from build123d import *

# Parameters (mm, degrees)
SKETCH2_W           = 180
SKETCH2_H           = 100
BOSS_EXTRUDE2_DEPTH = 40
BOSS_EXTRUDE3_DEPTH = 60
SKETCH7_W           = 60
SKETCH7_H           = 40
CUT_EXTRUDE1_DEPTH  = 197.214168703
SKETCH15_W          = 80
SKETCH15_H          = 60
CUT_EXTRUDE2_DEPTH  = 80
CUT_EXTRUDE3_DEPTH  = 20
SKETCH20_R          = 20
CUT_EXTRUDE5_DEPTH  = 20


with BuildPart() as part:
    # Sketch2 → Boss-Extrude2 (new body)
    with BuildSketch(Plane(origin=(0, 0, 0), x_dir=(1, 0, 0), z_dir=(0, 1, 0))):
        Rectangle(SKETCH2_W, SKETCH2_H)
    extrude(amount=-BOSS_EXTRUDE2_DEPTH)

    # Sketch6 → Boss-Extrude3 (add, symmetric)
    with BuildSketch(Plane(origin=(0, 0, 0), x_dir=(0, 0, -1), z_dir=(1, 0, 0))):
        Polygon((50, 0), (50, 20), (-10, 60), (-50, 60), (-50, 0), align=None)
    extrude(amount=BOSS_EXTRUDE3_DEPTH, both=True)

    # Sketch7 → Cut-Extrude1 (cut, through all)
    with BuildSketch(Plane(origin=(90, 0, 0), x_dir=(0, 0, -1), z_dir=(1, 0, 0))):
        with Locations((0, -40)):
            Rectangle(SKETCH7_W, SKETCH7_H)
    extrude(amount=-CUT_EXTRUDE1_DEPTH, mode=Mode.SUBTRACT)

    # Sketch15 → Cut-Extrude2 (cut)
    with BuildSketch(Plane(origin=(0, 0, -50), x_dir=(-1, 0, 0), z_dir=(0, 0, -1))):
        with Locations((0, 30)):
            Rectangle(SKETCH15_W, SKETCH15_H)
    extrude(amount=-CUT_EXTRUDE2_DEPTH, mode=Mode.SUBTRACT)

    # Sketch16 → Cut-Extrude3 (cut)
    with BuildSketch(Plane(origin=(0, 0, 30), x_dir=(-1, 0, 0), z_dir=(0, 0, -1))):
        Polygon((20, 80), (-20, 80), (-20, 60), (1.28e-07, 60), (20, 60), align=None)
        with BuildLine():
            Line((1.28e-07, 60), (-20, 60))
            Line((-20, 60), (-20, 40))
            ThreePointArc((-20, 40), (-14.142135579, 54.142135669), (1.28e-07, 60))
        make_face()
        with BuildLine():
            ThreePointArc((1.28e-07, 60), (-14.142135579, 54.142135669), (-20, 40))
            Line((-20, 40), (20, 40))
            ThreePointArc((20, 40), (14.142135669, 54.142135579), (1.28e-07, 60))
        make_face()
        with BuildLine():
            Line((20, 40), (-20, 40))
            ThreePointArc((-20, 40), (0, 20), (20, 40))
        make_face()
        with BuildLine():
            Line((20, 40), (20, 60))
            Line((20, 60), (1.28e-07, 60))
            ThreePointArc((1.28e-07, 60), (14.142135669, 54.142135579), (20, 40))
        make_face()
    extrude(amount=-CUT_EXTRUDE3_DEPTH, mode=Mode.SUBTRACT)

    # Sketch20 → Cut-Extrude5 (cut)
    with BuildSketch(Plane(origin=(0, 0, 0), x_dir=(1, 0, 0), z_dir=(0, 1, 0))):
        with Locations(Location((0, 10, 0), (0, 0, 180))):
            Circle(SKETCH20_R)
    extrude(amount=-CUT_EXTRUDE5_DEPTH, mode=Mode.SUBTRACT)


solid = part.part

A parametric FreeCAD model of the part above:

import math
import FreeCAD as App
import Part
import Sketcher

V = App.Vector
Q = App.Units.Quantity

doc = App.newDocument("Part")
body = doc.addObject("PartDesign::Body", "Body")

sketch1 = body.newObject("Sketcher::SketchObject", "Sketch")
sketch1.AttachmentSupport = (doc.getObject("XZ_Plane"), [""])
sketch1.MapMode = "FlatFace"
sketch1.addGeometry(Part.LineSegment(V(-90, -50, 0), V(-90, 50, 0)), False)
sketch1.addGeometry(Part.LineSegment(V(-90, 50, 0), V(90, 50, 0)), False)
sketch1.addGeometry(Part.LineSegment(V(90, 50, 0), V(90, -50, 0)), False)
sketch1.addGeometry(Part.LineSegment(V(90, -50, 0), V(-90, -50, 0)), False)
sketch1.addConstraint(Sketcher.Constraint("Coincident", 0, 2, 1, 1))
sketch1.addConstraint(Sketcher.Constraint("Coincident", 1, 2, 2, 1))
sketch1.addConstraint(Sketcher.Constraint("Coincident", 2, 2, 3, 1))
sketch1.addConstraint(Sketcher.Constraint("Coincident", 3, 2, 0, 1))
sketch1.addConstraint(Sketcher.Constraint("Vertical", 0))
sketch1.addConstraint(Sketcher.Constraint("Horizontal", 1))
sketch1.addConstraint(Sketcher.Constraint("Vertical", 2))
sketch1.addConstraint(Sketcher.Constraint("Horizontal", 3))
sketch1.addConstraint(Sketcher.Constraint("Symmetric", 0, 2, 2, 2, -1, 1))
sketch1.addConstraint(Sketcher.Constraint("DistanceX", 1, 1, 1, 2, Q("180 mm")))
sketch1.addConstraint(Sketcher.Constraint("DistanceY", 0, 1, 0, 2, Q("100 mm")))
pad1 = body.newObject("PartDesign::Pad", "Pad")
pad1.Profile = sketch1
pad1.Length = 40

sketch2 = body.newObject("Sketcher::SketchObject", "Sketch001")
sketch2.AttachmentSupport = (doc.getObject("YZ_Plane"), [""])
sketch2.MapMode = "FlatFace"
sketch2.addGeometry(Part.LineSegment(V(0, -50, 0), V(20, -50, 0)), False)
sketch2.addGeometry(Part.LineSegment(V(20, -50, 0), V(60, 10, 0)), False)
sketch2.addGeometry(Part.LineSegment(V(60, 10, 0), V(60, 50, 0)), False)
sketch2.addGeometry(Part.LineSegment(V(60, 50, 0), V(0, 50, 0)), False)
sketch2.addGeometry(Part.LineSegment(V(0, 50, 0), V(0, -50, 0)), False)
sketch2.addConstraint(Sketcher.Constraint("Coincident", 0, 2, 1, 1))
sketch2.addConstraint(Sketcher.Constraint("Coincident", 1, 2, 2, 1))
sketch2.addConstraint(Sketcher.Constraint("Coincident", 2, 2, 3, 1))
sketch2.addConstraint(Sketcher.Constraint("Coincident", 3, 2, 4, 1))
sketch2.addConstraint(Sketcher.Constraint("Coincident", 4, 2, 0, 1))
sketch2.addConstraint(Sketcher.Constraint("Horizontal", 0))
sketch2.addConstraint(Sketcher.Constraint("Vertical", 2))
sketch2.addConstraint(Sketcher.Constraint("Horizontal", 3))
sketch2.addConstraint(Sketcher.Constraint("Vertical", 4))
sketch2.addConstraint(Sketcher.Constraint("Symmetric", 3, 2, 4, 2, -1, 1))
sketch2.addConstraint(Sketcher.Constraint("DistanceX", 0, 1, 0, 2, Q("20 mm")))
sketch2.addConstraint(Sketcher.Constraint("DistanceX", 3, 2, 3, 1, Q("60 mm")))
sketch2.addConstraint(Sketcher.Constraint("DistanceY", 2, 1, 2, 2, Q("40 mm")))
sketch2.addConstraint(Sketcher.Constraint("DistanceY", 4, 2, 4, 1, Q("100 mm")))
pad2 = body.newObject("PartDesign::Pad", "Pad001")
pad2.Profile = sketch2
pad2.Length = 120
pad2.Midplane = True

sketch3 = body.newObject("Sketcher::SketchObject", "Sketch002")
sketch3.AttachmentSupport = (doc.getObject("YZ_Plane"), [""])
sketch3.MapMode = "FlatFace"
sketch3.AttachmentOffset = App.Placement(V(0, 0, 90), App.Rotation())
sketch3.addGeometry(Part.LineSegment(V(-20, 30, 0), V(-60, 30, 0)), False)
sketch3.addGeometry(Part.LineSegment(V(-60, 30, 0), V(-60, -30, 0)), False)
sketch3.addGeometry(Part.LineSegment(V(-60, -30, 0), V(-20, -30, 0)), False)
sketch3.addGeometry(Part.LineSegment(V(-20, -30, 0), V(-20, 30, 0)), False)
sketch3.addConstraint(Sketcher.Constraint("Coincident", 0, 2, 1, 1))
sketch3.addConstraint(Sketcher.Constraint("Coincident", 1, 2, 2, 1))
sketch3.addConstraint(Sketcher.Constraint("Coincident", 2, 2, 3, 1))
sketch3.addConstraint(Sketcher.Constraint("Coincident", 3, 2, 0, 1))
sketch3.addConstraint(Sketcher.Constraint("Horizontal", 0))
sketch3.addConstraint(Sketcher.Constraint("Vertical", 1))
sketch3.addConstraint(Sketcher.Constraint("Horizontal", 2))
sketch3.addConstraint(Sketcher.Constraint("Vertical", 3))
sketch3.addConstraint(Sketcher.Constraint("DistanceX", 0, 2, 0, 1, Q("40 mm")))
sketch3.addConstraint(Sketcher.Constraint("DistanceY", 1, 2, 1, 1, Q("60 mm")))
sketch3.addConstraint(Sketcher.Constraint("DistanceX", 0, 2, -1, 1, Q("60 mm")))
sketch3.addConstraint(Sketcher.Constraint("DistanceY", -1, 1, 0, 2, Q("30 mm")))
pocket1 = body.newObject("PartDesign::Pocket", "Pocket")
pocket1.Profile = sketch3
pocket1.Type = "ThroughAll"

sketch4 = body.newObject("Sketcher::SketchObject", "Sketch003")
sketch4.AttachmentSupport = (doc.getObject("XY_Plane"), [""])
sketch4.MapMode = "FlatFace"
sketch4.AttachmentOffset = App.Placement(V(0, 0, -50), App.Rotation())
sketch4.addGeometry(Part.LineSegment(V(40, 60, 0), V(40, 0, 0)), False)
sketch4.addGeometry(Part.LineSegment(V(40, 0, 0), V(-40, 0, 0)), False)
sketch4.addGeometry(Part.LineSegment(V(-40, 0, 0), V(-40, 60, 0)), False)
sketch4.addGeometry(Part.LineSegment(V(-40, 60, 0), V(40, 60, 0)), False)
sketch4.addConstraint(Sketcher.Constraint("Coincident", 0, 2, 1, 1))
sketch4.addConstraint(Sketcher.Constraint("Coincident", 1, 2, 2, 1))
sketch4.addConstraint(Sketcher.Constraint("Coincident", 2, 2, 3, 1))
sketch4.addConstraint(Sketcher.Constraint("Coincident", 3, 2, 0, 1))
sketch4.addConstraint(Sketcher.Constraint("Vertical", 0))
sketch4.addConstraint(Sketcher.Constraint("Horizontal", 1))
sketch4.addConstraint(Sketcher.Constraint("Vertical", 2))
sketch4.addConstraint(Sketcher.Constraint("Horizontal", 3))
sketch4.addConstraint(Sketcher.Constraint("Symmetric", 0, 2, 1, 2, -1, 1))
sketch4.addConstraint(Sketcher.Constraint("DistanceX", 1, 2, 1, 1, Q("80 mm")))
sketch4.addConstraint(Sketcher.Constraint("DistanceY", 0, 2, 0, 1, Q("60 mm")))
pocket2 = body.newObject("PartDesign::Pocket", "Pocket001")
pocket2.Profile = sketch4
pocket2.Length = 80
pocket2.Reversed = True

sketch5 = body.newObject("Sketcher::SketchObject", "Sketch004")
sketch5.AttachmentSupport = (doc.getObject("XY_Plane"), [""])
sketch5.MapMode = "FlatFace"
sketch5.AttachmentOffset = App.Placement(V(0, 0, 30), App.Rotation())
sketch5.addGeometry(Part.LineSegment(V(-20, 80, 0), V(20, 80, 0)), False)
sketch5.addGeometry(Part.LineSegment(V(20, 80, 0), V(20, 40, 0)), False)
sketch5.addGeometry(Part.ArcOfCircle(Part.Circle(V(0, 40, 0), V(0, 0, 1), 20), math.radians(180), math.radians(360)), False)
sketch5.addGeometry(Part.LineSegment(V(-20, 40, 0), V(-20, 80, 0)), False)
sketch5.addConstraint(Sketcher.Constraint("Coincident", 0, 2, 1, 1))
sketch5.addConstraint(Sketcher.Constraint("Tangent", 1, 2, 2, 2))
sketch5.addConstraint(Sketcher.Constraint("Tangent", 2, 1, 3, 1))
sketch5.addConstraint(Sketcher.Constraint("Coincident", 3, 2, 0, 1))
sketch5.addConstraint(Sketcher.Constraint("Horizontal", 0))
sketch5.addConstraint(Sketcher.Constraint("Vertical", 1))
sketch5.addConstraint(Sketcher.Constraint("Vertical", 3))
sketch5.addConstraint(Sketcher.Constraint("PointOnObject", 2, 3, -2))
sketch5.addConstraint(Sketcher.Constraint("Equal", 0, 1))
sketch5.addConstraint(Sketcher.Constraint("Radius", 2, Q("20 mm")))
sketch5.addConstraint(Sketcher.Constraint("DistanceY", -1, 1, 2, 3, Q("40 mm")))
pocket3 = body.newObject("PartDesign::Pocket", "Pocket002")
pocket3.Profile = sketch5
pocket3.Length = 20
pocket3.Reversed = True

sketch6 = body.newObject("Sketcher::SketchObject", "Sketch005")
sketch6.AttachmentSupport = (doc.getObject("XZ_Plane"), [""])
sketch6.MapMode = "FlatFace"
sketch6.addGeometry(Part.Circle(V(0, -10, 0), V(0, 0, 1), 20), False)
sketch6.addConstraint(Sketcher.Constraint("PointOnObject", 0, 3, -2))
sketch6.addConstraint(Sketcher.Constraint("Diameter", 0, Q("40 mm")))
sketch6.addConstraint(Sketcher.Constraint("DistanceY", 0, 3, -1, 1, Q("10 mm")))
pocket4 = body.newObject("PartDesign::Pocket", "Pocket003")
pocket4.Profile = sketch6
pocket4.Length = 20
pocket4.Reversed = True

doc.recompute()
